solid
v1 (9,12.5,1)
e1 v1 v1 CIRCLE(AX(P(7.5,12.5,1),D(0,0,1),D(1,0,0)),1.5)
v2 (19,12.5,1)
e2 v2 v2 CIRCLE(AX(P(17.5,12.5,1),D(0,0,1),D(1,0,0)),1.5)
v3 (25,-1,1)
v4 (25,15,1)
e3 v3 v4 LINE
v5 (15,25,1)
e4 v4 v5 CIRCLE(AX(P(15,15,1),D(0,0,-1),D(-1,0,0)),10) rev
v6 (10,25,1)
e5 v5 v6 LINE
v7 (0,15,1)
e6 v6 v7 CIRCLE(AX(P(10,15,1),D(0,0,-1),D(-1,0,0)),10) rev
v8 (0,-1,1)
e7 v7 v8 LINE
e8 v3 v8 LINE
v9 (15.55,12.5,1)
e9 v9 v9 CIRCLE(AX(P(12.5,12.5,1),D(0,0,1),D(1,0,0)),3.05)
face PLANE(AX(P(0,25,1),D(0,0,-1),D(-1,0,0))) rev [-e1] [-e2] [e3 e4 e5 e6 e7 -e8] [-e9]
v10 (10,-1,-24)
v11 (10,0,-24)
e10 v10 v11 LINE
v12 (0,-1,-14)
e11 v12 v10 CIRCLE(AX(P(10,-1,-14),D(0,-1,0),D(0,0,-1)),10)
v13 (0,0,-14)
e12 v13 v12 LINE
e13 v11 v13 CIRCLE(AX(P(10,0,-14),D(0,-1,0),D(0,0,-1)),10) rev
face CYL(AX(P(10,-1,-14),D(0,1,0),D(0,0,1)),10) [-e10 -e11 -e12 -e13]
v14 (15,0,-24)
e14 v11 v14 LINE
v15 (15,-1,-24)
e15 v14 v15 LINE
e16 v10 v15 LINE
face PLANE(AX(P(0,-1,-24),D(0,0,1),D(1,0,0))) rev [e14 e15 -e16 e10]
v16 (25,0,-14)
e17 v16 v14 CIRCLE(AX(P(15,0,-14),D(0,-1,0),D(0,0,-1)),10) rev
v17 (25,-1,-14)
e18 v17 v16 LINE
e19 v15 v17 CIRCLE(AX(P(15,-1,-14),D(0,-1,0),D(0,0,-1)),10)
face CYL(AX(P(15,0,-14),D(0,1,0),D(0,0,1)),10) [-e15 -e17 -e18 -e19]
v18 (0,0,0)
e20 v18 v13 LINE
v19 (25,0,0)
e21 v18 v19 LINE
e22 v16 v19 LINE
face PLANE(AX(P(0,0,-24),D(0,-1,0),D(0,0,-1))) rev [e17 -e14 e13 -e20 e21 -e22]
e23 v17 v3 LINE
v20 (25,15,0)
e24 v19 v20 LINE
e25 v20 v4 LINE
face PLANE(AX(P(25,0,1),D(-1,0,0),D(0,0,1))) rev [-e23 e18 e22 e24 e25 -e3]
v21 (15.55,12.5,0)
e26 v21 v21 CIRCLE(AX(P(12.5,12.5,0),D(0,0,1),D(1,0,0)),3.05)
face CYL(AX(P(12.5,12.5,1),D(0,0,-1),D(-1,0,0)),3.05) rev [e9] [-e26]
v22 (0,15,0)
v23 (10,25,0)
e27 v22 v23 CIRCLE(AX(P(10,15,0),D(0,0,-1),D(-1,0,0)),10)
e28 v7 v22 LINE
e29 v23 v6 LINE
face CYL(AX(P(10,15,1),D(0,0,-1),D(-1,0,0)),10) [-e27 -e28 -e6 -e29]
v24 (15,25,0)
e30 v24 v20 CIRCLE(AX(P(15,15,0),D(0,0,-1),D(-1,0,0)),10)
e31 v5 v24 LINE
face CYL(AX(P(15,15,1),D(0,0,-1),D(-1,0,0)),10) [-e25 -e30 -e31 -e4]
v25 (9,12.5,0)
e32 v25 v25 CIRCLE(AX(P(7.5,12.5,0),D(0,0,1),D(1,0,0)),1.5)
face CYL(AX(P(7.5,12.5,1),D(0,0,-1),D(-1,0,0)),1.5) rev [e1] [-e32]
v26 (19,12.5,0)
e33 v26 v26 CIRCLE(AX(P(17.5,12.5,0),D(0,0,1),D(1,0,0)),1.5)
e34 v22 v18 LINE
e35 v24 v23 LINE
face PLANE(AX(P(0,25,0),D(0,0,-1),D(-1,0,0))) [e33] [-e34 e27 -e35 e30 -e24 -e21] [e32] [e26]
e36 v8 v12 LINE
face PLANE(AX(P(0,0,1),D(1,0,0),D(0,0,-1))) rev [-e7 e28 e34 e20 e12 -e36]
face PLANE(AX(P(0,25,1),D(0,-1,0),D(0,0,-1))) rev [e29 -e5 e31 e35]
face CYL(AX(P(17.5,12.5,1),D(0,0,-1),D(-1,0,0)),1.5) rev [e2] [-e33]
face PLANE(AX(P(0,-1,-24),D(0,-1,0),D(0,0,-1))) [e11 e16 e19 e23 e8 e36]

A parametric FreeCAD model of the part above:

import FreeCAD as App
import Part
import Sketcher

V = App.Vector
Q = App.Units.Quantity


def edges_at(feature, points):
    """Names of the edges that pass closest to the given points."""
    edges = feature.Shape.Edges
    near = lambda p: min(range(len(edges)), key=lambda i: edges[i].distToShape(Part.Vertex(*p))[0])
    return sorted({f"Edge{near(p) + 1}" for p in points})


def add_polygon(sketch, points):
    """Adds a closed chain of lines whose ends are joined by coincident constraints."""
    first, n = sketch.GeometryCount, len(points)
    for a, b in zip(points, points[1:] + points[:1]):
        sketch.addGeometry(Part.LineSegment(App.Vector(*a, 0), App.Vector(*b, 0)), False)
    for i in range(n):
        sketch.addConstraint(Sketcher.Constraint("Coincident", first + i, 2, first + (i + 1) % n, 1))

doc = App.newDocument("Part")
params = doc.addObject("Spreadsheet::Sheet", "Params")
for row, (alias, value) in enumerate([
    ("sketch1_diameter", "3 mm"),
    ("sketch1_diameter2", "6.1 mm"),
    ("sketch1_width", "25 mm"),
    ("pad1_length", "1 mm"),
    ("sketch2_width", "25 mm"),
    ("pad2_length", "1 mm"),
    ("fillet_radius", "10 mm"),
], start=1):
    params.set(f"A{row}", alias)
    params.set(f"B{row}", "=" + value)
    params.setAlias(f"B{row}", alias)

body = doc.addObject("PartDesign::Body", "Body")

# Sketch on XY plane
sketch1 = body.newObject("Sketcher::SketchObject", "Sketch")
sketch1.AttachmentSupport = (doc.getObject("XY_Plane"), [""])
sketch1.MapMode = "FlatFace"
add_polygon(sketch1, [(0, 25), (0, 0), (25, 0), (25, 25)])  # lines 0-3
sketch1.addGeometry(Part.Circle(V(7.5, 12.5, 0), V(0, 0, 1), 1.5), False)  # 4
sketch1.addGeometry(Part.Circle(V(12.5, 12.5, 0), V(0, 0, 1), 3), False)  # 5
sketch1.addGeometry(Part.Circle(V(17.5, 12.5, 0), V(0, 0, 1), 1.5), False)  # 6
sketch1.addConstraint([
    Sketcher.Constraint("Vertical", 0),
    Sketcher.Constraint("Horizontal", 1),
    Sketcher.Constraint("Vertical", 2),
    Sketcher.Constraint("Horizontal", 3),
    Sketcher.Constraint("Coincident", 0, 2, -1, 1),
    Sketcher.Constraint("Equal", 4, 6),
    Sketcher.Constraint("Horizontal", 4, 3, 5, 3),
    Sketcher.Constraint("Horizontal", 5, 3, 6, 3),
    Sketcher.Constraint("Equal", 3, 0),
    Sketcher.Constraint("Diameter", 4, Q("3 mm")),
    Sketcher.Constraint("Diameter", 5, Q("6.1 mm")),
    Sketcher.Constraint("DistanceX", 1, 1, 1, 2, Q("25 mm")),
    Sketcher.Constraint("DistanceX", 4, 3, 5, 3, Q("5 mm")),
    Sketcher.Constraint("DistanceX", 5, 3, 6, 3, Q("5 mm")),
    Sketcher.Constraint("DistanceX", -1, 1, 4, 3, Q("7.5 mm")),
    Sketcher.Constraint("DistanceY", -1, 1, 4, 3, Q("12.5 mm")),
])
sketch1.setExpression("Constraints[13]", "Params.sketch1_diameter")
sketch1.setExpression("Constraints[14]", "Params.sketch1_diameter2")
sketch1.setExpression("Constraints[15]", "Params.sketch1_width")
pad1 = body.newObject("PartDesign::Pad", "Pad")
pad1.Profile = sketch1
pad1.setExpression("Length", "Params.pad1_length")

# Sketch on XZ plane
sketch2 = body.newObject("Sketcher::SketchObject", "Sketch001")
sketch2.AttachmentSupport = (doc.getObject("XZ_Plane"), [""])
sketch2.MapMode = "FlatFace"
add_polygon(sketch2, [(0, 1), (0, -24), (25, -24), (25, 1)])  # lines 0-3
sketch2.addConstraint([
    Sketcher.Constraint("Vertical", 0),
    Sketcher.Constraint("Horizontal", 1),
    Sketcher.Constraint("Vertical", 2),
    Sketcher.Constraint("Horizontal", 3),
    Sketcher.Constraint("PointOnObject", 0, 2, -2),
    Sketcher.Constraint("Equal", 3, 0),
    Sketcher.Constraint("DistanceX", 1, 1, 1, 2, Q("25 mm")),
    Sketcher.Constraint("DistanceY", 0, 2, -1, 1, Q("24 mm")),
])
sketch2.setExpression("Constraints[10]", "Params.sketch2_width")
pad2 = body.newObject("PartDesign::Pad", "Pad001")
pad2.Profile = sketch2
pad2.setExpression("Length", "Params.pad2_length")
doc.recompute()

fillet = body.newObject("PartDesign::Fillet", "Fillet")
fillet.Base = (pad2, edges_at(pad2, [
    (0, -0.5, -24),
    (25, -0.5, -24),
    (0, 25, 0.5),
    (25, 25, 0.5),
]))
fillet.setExpression("Radius", "Params.fillet_radius")

doc.recompute()
